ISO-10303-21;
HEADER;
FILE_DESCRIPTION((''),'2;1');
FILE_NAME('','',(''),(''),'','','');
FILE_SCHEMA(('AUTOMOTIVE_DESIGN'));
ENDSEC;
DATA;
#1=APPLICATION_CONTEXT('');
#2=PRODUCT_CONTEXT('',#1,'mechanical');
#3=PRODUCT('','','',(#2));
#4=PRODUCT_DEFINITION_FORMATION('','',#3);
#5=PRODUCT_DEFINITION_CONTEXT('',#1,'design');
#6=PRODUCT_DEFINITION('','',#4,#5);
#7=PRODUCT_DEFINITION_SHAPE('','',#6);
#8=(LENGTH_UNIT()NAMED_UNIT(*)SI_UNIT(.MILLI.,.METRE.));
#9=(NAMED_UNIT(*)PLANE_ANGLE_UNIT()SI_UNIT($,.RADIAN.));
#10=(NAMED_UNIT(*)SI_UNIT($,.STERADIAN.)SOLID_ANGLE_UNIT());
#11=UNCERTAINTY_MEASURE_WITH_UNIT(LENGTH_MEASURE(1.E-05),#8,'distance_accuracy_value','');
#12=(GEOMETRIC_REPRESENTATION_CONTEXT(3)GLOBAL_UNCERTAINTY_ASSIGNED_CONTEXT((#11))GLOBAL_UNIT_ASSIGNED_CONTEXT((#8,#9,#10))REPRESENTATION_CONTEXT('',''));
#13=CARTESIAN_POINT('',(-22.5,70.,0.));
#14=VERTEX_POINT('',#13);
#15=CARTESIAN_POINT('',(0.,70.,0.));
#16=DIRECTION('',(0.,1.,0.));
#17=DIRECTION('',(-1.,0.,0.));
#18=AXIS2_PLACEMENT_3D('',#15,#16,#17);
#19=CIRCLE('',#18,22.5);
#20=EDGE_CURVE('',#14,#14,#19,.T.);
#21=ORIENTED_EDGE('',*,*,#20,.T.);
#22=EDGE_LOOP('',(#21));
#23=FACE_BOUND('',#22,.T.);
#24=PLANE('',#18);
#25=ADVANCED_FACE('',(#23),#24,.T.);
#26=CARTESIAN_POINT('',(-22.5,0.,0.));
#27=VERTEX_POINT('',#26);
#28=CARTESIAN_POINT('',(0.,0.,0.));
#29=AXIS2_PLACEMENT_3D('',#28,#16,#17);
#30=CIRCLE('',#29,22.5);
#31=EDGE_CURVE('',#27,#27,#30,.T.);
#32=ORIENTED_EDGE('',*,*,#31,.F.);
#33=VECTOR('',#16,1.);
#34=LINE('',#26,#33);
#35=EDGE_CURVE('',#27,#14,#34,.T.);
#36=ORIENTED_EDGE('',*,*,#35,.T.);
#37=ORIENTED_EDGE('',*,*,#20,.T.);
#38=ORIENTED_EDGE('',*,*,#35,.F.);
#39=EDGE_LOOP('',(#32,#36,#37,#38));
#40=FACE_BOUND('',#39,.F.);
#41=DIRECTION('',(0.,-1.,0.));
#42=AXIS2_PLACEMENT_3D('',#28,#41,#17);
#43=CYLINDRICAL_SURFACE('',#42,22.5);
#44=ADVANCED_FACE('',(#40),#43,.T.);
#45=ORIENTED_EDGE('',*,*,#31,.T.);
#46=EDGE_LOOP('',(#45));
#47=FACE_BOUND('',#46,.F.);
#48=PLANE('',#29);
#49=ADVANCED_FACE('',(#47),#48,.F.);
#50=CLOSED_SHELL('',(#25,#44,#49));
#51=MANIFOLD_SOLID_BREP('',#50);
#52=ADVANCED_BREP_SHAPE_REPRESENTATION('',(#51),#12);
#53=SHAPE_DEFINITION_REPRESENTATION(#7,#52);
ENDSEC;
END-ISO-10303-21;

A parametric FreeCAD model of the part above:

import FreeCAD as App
import Part
import Sketcher
Q = App.Units.Quantity

doc = App.newDocument("Part")
params = doc.addObject("Spreadsheet::Sheet", "Params")
for row, (alias, value) in enumerate([
    ("sketch1_diameter", "45 mm"),
    ("pad1_length", "70 mm"),
], start=1):
    params.set(f"A{row}", alias)
    params.set(f"B{row}", "=" + value)
    params.setAlias(f"B{row}", alias)

body = doc.addObject("PartDesign::Body", "Body")

# Sketch on XZ plane
sketch1 = body.newObject("Sketcher::SketchObject", "Sketch")
sketch1.AttachmentSupport = (doc.getObject("XZ_Plane"), [""])
sketch1.MapMode = "FlatFace"
sketch1.addGeometry(Part.Circle(App.Vector(0, 0, 0), App.Vector(0, 0, 1), 22), False)
sketch1.addConstraint(Sketcher.Constraint("Coincident", 0, 3, -1, 1))
sketch1.addConstraint(Sketcher.Constraint("Diameter", 0, Q("45 mm")))
sketch1.setExpression("Constraints[1]", "Params.sketch1_diameter")
pad1 = body.newObject("PartDesign::Pad", "Pad")
pad1.Profile = sketch1
pad1.setExpression("Length", "Params.pad1_length")
pad1.Reversed = True

doc.recompute()
